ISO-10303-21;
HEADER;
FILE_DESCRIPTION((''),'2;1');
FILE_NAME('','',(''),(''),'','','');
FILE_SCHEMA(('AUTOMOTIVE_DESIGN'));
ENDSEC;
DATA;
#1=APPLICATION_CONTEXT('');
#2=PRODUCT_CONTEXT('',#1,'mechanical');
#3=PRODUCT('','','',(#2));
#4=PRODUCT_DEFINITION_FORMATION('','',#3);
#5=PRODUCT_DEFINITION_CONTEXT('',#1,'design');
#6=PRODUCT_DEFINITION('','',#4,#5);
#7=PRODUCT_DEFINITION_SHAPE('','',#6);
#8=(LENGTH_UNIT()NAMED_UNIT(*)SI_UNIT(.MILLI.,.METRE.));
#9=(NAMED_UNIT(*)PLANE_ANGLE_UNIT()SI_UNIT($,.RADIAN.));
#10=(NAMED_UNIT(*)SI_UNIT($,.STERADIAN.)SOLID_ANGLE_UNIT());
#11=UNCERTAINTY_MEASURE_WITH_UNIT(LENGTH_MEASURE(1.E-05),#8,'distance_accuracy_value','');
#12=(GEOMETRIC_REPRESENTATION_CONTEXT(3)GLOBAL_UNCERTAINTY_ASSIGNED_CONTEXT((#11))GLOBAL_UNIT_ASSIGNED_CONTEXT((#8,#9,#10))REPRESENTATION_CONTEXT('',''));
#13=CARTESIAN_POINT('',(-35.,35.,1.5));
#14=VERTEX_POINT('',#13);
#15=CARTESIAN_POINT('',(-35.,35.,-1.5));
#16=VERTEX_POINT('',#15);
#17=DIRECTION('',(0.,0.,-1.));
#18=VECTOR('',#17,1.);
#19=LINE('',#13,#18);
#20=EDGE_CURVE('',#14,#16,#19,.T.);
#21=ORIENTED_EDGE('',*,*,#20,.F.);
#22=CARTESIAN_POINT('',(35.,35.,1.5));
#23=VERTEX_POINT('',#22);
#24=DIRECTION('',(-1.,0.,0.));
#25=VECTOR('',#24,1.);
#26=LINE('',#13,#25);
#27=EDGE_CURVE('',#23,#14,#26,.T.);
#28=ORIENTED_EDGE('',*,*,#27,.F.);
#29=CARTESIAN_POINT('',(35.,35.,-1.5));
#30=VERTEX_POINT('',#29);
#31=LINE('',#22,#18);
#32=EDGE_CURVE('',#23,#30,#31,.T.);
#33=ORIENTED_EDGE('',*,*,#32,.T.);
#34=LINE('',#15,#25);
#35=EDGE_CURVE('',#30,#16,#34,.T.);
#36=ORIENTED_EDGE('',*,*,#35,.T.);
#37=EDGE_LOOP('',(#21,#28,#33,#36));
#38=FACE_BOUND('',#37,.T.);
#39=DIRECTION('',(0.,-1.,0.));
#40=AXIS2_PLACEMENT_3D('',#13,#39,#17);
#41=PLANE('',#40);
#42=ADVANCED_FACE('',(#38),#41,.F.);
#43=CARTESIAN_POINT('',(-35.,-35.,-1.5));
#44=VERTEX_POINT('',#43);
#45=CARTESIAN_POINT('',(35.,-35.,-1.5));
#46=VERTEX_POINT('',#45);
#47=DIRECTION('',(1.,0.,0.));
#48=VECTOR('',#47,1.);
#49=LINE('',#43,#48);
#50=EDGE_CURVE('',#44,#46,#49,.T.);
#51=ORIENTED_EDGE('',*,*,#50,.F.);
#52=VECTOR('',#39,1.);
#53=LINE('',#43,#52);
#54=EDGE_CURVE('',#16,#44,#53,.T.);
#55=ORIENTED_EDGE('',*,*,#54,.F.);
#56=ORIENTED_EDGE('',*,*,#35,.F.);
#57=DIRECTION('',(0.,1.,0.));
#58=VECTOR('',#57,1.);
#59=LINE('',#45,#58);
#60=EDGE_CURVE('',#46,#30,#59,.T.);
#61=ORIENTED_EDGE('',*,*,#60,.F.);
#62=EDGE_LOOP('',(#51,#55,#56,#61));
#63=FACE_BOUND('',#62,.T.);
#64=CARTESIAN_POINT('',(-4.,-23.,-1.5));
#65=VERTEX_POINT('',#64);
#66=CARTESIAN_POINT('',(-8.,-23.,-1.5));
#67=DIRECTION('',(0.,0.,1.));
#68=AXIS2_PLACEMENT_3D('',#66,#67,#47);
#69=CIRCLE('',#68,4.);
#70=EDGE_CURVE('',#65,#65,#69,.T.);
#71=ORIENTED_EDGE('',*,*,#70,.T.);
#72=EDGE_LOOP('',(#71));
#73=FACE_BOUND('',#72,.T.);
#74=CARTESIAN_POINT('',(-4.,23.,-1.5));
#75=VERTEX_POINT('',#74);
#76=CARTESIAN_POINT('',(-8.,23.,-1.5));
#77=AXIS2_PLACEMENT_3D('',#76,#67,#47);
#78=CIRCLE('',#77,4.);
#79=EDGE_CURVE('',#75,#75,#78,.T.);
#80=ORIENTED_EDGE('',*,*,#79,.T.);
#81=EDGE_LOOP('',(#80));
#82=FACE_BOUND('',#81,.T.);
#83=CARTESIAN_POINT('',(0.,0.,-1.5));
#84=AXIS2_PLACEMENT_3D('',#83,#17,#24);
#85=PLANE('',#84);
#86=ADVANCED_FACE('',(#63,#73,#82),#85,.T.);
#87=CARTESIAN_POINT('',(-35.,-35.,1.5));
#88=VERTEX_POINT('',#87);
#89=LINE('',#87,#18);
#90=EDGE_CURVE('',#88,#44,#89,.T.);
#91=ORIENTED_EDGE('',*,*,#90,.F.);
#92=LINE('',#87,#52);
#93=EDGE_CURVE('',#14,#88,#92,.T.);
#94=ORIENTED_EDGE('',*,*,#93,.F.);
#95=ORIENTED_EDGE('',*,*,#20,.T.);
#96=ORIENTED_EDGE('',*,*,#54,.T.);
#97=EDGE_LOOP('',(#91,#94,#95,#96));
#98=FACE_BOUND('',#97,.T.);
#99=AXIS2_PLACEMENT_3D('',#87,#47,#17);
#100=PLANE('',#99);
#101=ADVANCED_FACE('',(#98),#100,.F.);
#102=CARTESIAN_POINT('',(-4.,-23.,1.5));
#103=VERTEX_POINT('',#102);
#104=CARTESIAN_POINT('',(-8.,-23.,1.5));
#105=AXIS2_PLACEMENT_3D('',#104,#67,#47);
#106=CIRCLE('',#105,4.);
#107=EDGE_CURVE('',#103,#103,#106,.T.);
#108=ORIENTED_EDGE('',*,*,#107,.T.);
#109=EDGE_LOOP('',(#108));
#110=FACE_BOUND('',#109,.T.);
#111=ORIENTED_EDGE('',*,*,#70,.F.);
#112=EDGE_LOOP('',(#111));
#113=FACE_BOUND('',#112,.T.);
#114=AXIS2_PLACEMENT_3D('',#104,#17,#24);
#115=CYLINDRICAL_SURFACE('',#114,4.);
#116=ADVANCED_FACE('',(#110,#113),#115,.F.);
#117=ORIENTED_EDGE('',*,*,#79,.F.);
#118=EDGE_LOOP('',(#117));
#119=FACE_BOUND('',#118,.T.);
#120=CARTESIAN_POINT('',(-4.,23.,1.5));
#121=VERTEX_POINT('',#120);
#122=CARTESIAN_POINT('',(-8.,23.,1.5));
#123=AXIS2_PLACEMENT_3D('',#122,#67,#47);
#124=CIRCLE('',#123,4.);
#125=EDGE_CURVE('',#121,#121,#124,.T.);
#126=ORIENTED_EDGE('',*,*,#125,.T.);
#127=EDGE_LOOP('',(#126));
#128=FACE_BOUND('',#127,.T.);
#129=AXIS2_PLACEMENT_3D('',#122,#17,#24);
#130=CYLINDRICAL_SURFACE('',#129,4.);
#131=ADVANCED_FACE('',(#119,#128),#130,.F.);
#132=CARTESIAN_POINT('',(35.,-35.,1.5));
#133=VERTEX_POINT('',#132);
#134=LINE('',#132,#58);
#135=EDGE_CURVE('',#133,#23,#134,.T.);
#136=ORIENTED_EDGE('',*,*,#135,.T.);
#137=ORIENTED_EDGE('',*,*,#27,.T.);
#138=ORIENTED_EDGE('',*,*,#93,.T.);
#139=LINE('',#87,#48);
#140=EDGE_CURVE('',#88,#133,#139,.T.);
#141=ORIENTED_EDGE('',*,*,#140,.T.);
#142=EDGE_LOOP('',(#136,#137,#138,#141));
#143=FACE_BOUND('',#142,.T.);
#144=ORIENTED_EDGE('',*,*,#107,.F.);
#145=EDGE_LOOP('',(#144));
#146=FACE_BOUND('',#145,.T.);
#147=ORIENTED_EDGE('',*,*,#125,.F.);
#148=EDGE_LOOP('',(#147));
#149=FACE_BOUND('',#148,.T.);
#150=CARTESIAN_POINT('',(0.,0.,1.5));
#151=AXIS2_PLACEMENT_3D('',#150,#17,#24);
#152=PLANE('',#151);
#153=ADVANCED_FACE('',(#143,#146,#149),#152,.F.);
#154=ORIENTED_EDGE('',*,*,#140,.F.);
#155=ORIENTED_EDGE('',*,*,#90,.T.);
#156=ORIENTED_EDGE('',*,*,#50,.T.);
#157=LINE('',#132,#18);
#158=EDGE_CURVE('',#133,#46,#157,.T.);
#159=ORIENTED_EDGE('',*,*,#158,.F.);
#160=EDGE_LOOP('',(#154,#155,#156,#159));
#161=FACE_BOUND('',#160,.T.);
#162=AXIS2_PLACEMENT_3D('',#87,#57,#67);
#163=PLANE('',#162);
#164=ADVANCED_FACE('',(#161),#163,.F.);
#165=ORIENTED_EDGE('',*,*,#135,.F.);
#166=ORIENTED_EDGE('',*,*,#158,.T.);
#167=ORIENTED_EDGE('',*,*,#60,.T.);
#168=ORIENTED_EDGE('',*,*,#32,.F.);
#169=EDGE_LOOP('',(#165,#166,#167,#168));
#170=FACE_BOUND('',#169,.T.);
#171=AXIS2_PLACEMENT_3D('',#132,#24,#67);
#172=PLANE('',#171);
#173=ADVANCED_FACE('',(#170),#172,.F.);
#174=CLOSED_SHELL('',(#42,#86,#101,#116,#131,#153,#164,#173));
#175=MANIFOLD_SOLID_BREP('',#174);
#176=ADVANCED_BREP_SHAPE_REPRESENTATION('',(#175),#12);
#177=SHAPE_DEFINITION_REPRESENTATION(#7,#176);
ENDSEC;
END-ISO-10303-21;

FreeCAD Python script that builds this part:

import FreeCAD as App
import Part
import Sketcher

V = App.Vector
Q = App.Units.Quantity


def add_polygon(sketch, points):
    """Adds a closed chain of lines whose ends are joined by coincident constraints."""
    first, n = sketch.GeometryCount, len(points)
    for a, b in zip(points, points[1:] + points[:1]):
        sketch.addGeometry(Part.LineSegment(App.Vector(*a, 0), App.Vector(*b, 0)), False)
    for i in range(n):
        sketch.addConstraint(Sketcher.Constraint("Coincident", first + i, 2, first + (i + 1) % n, 1))

doc = App.newDocument("Part")
body = doc.addObject("PartDesign::Body", "Body")

sketch1 = doc.addObject("Sketcher::SketchObject", "Sketch")
body.addObject(sketch1)
sketch1.AttachmentSupport = (doc.XY_Plane, [""])
sketch1.MapMode = "FlatFace"
add_polygon(sketch1, [(-35, 35), (-35, -35), (35, -35), (35, 35)])
sketch1.addGeometry(Part.Circle(V(-8, -23, 0), V(0, 0, 1), 4), False)
sketch1.addGeometry(Part.Circle(V(-8, 23, 0), V(0, 0, 1), 4), False)
sketch1.addConstraint([
    Sketcher.Constraint("Vertical", 0),
    Sketcher.Constraint("Horizontal", 1),
    Sketcher.Constraint("Vertical", 2),
    Sketcher.Constraint("Horizontal", 3),
    Sketcher.Constraint("Equal", 4, 5),
    Sketcher.Constraint("Symmetric", 0, 2, 2, 2, -1, 1),
    Sketcher.Constraint("Symmetric", 4, 3, 5, 3, -1),
    Sketcher.Constraint("Equal", 3, 0),
    Sketcher.Constraint("Diameter", 4, Q("8 mm")),
    Sketcher.Constraint("DistanceX", 1, 1, 1, 2, Q("70 mm")),
    Sketcher.Constraint("DistanceX", 4, 3, -1, 1, Q("8 mm")),
    Sketcher.Constraint("DistanceY", 4, 3, -1, 1, Q("23 mm")),
])
pad1 = doc.addObject("PartDesign::Pad", "Pad")
body.addObject(pad1)
pad1.Profile = sketch1
pad1.Length = 3
pad1.Midplane = True

doc.recompute()
